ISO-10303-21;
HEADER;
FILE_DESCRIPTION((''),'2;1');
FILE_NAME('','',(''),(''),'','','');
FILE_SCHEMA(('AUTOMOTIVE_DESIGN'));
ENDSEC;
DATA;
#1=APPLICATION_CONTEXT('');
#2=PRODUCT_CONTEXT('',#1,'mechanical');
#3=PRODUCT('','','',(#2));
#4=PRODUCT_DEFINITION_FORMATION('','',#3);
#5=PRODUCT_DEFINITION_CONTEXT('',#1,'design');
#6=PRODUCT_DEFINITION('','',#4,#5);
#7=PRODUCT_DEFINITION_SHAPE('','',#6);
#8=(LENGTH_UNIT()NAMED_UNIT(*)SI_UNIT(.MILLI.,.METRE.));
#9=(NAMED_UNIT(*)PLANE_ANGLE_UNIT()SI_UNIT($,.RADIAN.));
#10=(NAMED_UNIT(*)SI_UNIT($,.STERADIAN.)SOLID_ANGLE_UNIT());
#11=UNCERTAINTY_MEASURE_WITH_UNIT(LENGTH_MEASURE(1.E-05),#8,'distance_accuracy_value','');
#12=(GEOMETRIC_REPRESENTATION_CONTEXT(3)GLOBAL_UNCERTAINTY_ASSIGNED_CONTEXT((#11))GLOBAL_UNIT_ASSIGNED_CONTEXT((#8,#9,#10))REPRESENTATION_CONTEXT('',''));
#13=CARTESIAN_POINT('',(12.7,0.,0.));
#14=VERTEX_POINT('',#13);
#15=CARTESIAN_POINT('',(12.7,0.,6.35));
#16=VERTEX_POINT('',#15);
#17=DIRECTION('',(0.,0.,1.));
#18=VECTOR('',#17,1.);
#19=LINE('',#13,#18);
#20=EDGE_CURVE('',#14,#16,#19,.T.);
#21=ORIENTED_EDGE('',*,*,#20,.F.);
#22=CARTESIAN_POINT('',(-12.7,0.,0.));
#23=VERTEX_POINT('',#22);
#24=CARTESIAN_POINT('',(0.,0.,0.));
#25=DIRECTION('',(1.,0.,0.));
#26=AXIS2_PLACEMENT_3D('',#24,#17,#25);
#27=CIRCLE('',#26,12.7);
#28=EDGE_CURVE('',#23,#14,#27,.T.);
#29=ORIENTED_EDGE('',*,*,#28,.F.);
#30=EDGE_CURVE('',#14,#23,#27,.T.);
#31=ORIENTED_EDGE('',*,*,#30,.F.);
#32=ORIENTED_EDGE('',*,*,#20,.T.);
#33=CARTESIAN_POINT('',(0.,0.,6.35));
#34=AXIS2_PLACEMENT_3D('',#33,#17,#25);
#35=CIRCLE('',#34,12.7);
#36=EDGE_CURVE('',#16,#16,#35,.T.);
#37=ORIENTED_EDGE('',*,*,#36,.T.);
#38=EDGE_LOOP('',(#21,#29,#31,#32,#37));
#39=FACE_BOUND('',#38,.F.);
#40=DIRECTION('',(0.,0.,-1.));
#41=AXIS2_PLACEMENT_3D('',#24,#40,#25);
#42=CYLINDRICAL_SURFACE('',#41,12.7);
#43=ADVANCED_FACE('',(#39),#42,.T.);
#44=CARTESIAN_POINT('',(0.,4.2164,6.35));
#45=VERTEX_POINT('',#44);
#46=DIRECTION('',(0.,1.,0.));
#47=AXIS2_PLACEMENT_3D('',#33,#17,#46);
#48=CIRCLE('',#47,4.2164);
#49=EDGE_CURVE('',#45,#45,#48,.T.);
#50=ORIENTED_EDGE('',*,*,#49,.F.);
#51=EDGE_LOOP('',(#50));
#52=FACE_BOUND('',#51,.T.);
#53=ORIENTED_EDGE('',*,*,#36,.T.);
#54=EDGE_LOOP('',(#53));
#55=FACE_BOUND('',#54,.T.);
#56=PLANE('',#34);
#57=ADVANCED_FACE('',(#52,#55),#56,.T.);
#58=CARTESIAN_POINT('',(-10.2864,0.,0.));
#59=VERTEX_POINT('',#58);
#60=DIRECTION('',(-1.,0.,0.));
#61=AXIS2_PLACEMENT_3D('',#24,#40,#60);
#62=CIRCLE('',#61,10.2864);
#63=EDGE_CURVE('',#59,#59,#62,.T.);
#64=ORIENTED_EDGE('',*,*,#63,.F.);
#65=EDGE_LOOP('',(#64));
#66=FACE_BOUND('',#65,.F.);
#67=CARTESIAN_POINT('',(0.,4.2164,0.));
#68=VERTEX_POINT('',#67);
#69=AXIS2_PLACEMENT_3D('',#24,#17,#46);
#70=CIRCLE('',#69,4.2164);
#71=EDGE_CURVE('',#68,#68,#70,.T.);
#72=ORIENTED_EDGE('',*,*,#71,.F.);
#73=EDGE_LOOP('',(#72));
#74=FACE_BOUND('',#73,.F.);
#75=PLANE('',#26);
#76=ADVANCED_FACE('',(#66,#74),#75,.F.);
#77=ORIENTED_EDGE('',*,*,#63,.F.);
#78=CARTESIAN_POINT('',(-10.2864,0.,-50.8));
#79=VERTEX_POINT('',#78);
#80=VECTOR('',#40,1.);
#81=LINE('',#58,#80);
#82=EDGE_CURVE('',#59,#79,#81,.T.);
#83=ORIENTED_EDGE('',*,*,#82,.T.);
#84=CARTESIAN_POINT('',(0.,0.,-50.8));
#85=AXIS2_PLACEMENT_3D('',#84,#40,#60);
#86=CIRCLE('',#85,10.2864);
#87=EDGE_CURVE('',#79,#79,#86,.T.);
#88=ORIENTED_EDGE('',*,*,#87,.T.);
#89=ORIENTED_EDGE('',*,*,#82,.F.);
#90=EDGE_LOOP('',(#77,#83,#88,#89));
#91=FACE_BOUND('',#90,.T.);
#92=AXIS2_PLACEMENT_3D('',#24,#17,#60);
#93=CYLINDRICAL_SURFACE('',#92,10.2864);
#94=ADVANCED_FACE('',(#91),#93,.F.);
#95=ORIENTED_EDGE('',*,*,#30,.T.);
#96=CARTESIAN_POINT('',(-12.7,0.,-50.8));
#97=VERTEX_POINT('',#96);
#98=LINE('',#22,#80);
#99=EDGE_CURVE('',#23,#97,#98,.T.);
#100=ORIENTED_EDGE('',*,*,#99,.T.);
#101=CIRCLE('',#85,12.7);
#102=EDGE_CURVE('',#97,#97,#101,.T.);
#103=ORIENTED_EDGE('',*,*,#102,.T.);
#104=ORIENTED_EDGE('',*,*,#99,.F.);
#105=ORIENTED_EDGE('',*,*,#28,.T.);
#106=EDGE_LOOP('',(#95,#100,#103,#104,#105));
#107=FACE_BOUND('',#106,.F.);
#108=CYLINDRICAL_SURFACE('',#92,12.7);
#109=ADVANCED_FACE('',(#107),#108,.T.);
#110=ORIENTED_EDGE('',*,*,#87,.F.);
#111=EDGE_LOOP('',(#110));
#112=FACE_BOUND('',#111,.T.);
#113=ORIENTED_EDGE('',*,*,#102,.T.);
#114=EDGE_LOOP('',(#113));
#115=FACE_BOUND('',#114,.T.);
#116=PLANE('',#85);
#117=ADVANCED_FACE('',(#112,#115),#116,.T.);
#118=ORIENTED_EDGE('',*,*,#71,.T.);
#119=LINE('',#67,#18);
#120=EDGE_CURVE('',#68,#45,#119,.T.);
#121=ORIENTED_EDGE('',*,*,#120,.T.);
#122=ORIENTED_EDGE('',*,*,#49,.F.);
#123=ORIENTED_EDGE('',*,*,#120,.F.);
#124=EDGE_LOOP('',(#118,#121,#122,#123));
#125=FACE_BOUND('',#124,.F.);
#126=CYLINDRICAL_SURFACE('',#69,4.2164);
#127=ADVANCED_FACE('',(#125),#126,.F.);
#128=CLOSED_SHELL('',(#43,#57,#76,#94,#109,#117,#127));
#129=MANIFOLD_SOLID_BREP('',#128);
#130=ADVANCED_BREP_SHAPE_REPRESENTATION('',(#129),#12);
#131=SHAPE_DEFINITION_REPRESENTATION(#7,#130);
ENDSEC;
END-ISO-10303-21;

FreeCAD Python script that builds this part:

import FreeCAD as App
import Part
import Sketcher
from FreeCAD import Vector
Q = App.Units.Quantity

doc = App.newDocument("Part")
body = doc.addObject("PartDesign::Body", "Body")

# Sketch on XY plane
sketch1 = body.newObject("Sketcher::SketchObject", "Sketch")
sketch1.AttachmentSupport = (doc.getObject("XY_Plane"), [""])
sketch1.MapMode = "FlatFace"
sketch1.addGeometry(Part.Circle(Vector(0, 0, 0), Vector(0, 0, 1), 13), False)
sketch1.addConstraint([
    Sketcher.Constraint("Coincident", 0, 3, -1, 1),
    Sketcher.Constraint("Diameter", 0, Q("1 in")),
])
pad1 = body.newObject("PartDesign::Pad", "Pad")
pad1.Profile = sketch1
pad1.Length = Q("0.25 in")

# Sketch on XY plane
sketch2 = body.newObject("Sketcher::SketchObject", "Sketch001")
sketch2.AttachmentSupport = (doc.getObject("XY_Plane"), [""])
sketch2.MapMode = "FlatFace"
sketch2.addGeometry(Part.Circle(Vector(0, 0, 0), Vector(0, 0, 1), 4.2), False)
sketch2.addConstraint([
    Sketcher.Constraint("Coincident", 0, 3, -1, 1),
    Sketcher.Constraint("Diameter", 0, Q("0.332 in")),
])
doc.recompute()
hole = body.newObject("PartDesign::Hole", "Hole")
hole.Profile = sketch2
hole.ThreadType = "None"
hole.Diameter = Q("0.332 in")
hole.DepthType = "ThroughAll"
hole.Reversed = True

# Sketch on XY plane
sketch3 = body.newObject("Sketcher::SketchObject", "Sketch002")
sketch3.AttachmentSupport = (doc.getObject("XY_Plane"), [""])
sketch3.MapMode = "FlatFace"
sketch3.addGeometry([
    Part.Circle(Vector(0, 0, 0), Vector(0, 0, 1), 13),
    Part.Circle(Vector(0, 0, 0), Vector(0, 0, 1), 10),
], False)
sketch3.addConstraint([
    Sketcher.Constraint("Coincident", 0, 3, -1, 1),
    Sketcher.Constraint("Coincident", 1, 3, -1, 1),
    Sketcher.Constraint("Diameter", 0, Q("1 in")),
    Sketcher.Constraint("Diameter", 1, Q("20.5728 mm")),
])
pad2 = body.newObject("PartDesign::Pad", "Pad001")
pad2.Profile = sketch3
pad2.Length = Q("2 in")
pad2.Reversed = True

doc.recompute()
